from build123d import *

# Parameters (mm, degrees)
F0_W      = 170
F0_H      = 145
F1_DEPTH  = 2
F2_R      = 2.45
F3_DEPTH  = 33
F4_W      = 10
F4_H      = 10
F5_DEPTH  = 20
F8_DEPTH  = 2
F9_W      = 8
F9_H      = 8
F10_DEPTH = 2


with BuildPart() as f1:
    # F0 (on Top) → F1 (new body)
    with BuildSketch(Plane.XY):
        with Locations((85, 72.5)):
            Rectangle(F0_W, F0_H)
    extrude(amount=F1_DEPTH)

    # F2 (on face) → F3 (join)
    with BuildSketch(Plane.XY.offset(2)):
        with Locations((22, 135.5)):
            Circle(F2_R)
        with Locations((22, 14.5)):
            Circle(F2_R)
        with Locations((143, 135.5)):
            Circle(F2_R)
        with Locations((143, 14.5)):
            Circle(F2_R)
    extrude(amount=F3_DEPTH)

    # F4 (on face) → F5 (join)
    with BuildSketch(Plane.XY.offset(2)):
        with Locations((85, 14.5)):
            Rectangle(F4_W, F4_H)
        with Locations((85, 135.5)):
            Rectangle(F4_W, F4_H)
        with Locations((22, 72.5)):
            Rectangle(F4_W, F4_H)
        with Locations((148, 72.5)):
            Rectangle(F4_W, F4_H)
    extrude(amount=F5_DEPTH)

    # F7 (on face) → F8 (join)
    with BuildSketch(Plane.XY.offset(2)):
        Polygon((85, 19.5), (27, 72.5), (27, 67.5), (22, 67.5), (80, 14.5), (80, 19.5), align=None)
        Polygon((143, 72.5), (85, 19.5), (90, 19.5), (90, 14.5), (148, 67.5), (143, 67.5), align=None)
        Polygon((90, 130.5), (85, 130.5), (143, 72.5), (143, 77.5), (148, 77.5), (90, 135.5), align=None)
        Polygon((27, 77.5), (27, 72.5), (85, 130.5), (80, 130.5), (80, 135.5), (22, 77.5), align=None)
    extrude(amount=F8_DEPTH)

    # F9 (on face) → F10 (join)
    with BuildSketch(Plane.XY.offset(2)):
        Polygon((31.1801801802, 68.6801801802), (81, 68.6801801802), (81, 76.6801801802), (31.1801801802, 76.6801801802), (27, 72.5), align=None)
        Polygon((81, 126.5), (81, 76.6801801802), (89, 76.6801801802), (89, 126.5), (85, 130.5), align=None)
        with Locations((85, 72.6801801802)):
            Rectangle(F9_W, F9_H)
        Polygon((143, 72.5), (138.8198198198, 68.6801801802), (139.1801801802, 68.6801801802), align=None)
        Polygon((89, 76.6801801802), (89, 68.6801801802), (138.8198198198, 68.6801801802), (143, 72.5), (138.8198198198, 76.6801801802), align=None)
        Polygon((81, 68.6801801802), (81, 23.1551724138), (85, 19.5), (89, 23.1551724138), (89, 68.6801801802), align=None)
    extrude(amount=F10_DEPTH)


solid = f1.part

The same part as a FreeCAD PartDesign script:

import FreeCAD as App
import Part
import Sketcher
from FreeCAD import Vector
Q = App.Units.Quantity

doc = App.newDocument("Part")
body = doc.addObject("PartDesign::Body", "Body")

sketch1 = body.newObject("Sketcher::SketchObject", "Sketch")
sketch1.AttachmentSupport = (doc.getObject("XY_Plane"), [""])
sketch1.MapMode = "FlatFace"
sketch1.addGeometry([
    Part.LineSegment(Vector(0, 145, 0), Vector(0, 0, 0)),
    Part.LineSegment(Vector(0, 0, 0), Vector(170, 0, 0)),
    Part.LineSegment(Vector(170, 0, 0), Vector(170, 145, 0)),
    Part.LineSegment(Vector(170, 145, 0), Vector(0, 145, 0)),
], False)
sketch1.addConstraint([
    Sketcher.Constraint("Coincident", 0, 2, 1, 1),
    Sketcher.Constraint("Coincident", 1, 2, 2, 1),
    Sketcher.Constraint("Coincident", 2, 2, 3, 1),
    Sketcher.Constraint("Coincident", 3, 2, 0, 1),
    Sketcher.Constraint("Vertical", 0),
    Sketcher.Constraint("Horizontal", 1),
    Sketcher.Constraint("Vertical", 2),
    Sketcher.Constraint("Horizontal", 3),
    Sketcher.Constraint("Coincident", 0, 2, -1, 1),
    Sketcher.Constraint("DistanceX", 1, 1, 1, 2, Q("170 mm")),
    Sketcher.Constraint("DistanceY", 0, 2, 0, 1, Q("145 mm")),
])
pad1 = body.newObject("PartDesign::Pad", "Pad")
pad1.Profile = sketch1
pad1.Length = 2

sketch2 = body.newObject("Sketcher::SketchObject", "Sketch001")
sketch2.AttachmentSupport = (doc.getObject("XY_Plane"), [""])
sketch2.MapMode = "FlatFace"
sketch2.AttachmentOffset = App.Placement(Vector(0, 0, 2), App.Rotation())
sketch2.addGeometry([
    Part.Circle(Vector(22, 135.5, 0), Vector(0, 0, 1), 2.5),
    Part.Circle(Vector(22, 14.5, 0), Vector(0, 0, 1), 2.5),
    Part.Circle(Vector(143, 135.5, 0), Vector(0, 0, 1), 2.5),
    Part.Circle(Vector(143, 14.5, 0), Vector(0, 0, 1), 2.5),
], False)
sketch2.addConstraint([
    Sketcher.Constraint("Equal", 0, 1),
    Sketcher.Constraint("Equal", 1, 2),
    Sketcher.Constraint("Equal", 2, 3),
    Sketcher.Constraint("Horizontal", 0, 3, 2, 3),
    Sketcher.Constraint("Horizontal", 1, 3, 3, 3),
    Sketcher.Constraint("Vertical", 0, 3, 1, 3),
    Sketcher.Constraint("Vertical", 2, 3, 3, 3),
    Sketcher.Constraint("Diameter", 0, Q("4.9 mm")),
    Sketcher.Constraint("DistanceX", -1, 1, 0, 3, Q("22 mm")),
    Sketcher.Constraint("DistanceX", -1, 1, 2, 3, Q("143 mm")),
    Sketcher.Constraint("DistanceY", 1, 3, 0, 3, Q("121 mm")),
    Sketcher.Constraint("DistanceY", -1, 1, 0, 3, Q("135.5 mm")),
])
pad2 = body.newObject("PartDesign::Pad", "Pad001")
pad2.Profile = sketch2
pad2.Length = 33

sketch3 = body.newObject("Sketcher::SketchObject", "Sketch002")
sketch3.AttachmentSupport = (doc.getObject("XY_Plane"), [""])
sketch3.MapMode = "FlatFace"
sketch3.AttachmentOffset = App.Placement(Vector(0, 0, 2), App.Rotation())
sketch3.addGeometry([
    Part.LineSegment(Vector(80, 20, 0), Vector(80, 10, 0)),
    Part.LineSegment(Vector(80, 10, 0), Vector(90, 10, 0)),
    Part.LineSegment(Vector(90, 10, 0), Vector(90, 20, 0)),
    Part.LineSegment(Vector(90, 20, 0), Vector(80, 20, 0)),
    Part.LineSegment(Vector(80, 140, 0), Vector(80, 130, 0)),
    Part.LineSegment(Vector(80, 130, 0), Vector(90, 130, 0)),
    Part.LineSegment(Vector(90, 130, 0), Vector(90, 140, 0)),
    Part.LineSegment(Vector(90, 140, 0), Vector(80, 140, 0)),
    Part.LineSegment(Vector(17, 78, 0), Vector(17, 68, 0)),
    Part.LineSegment(Vector(17, 68, 0), Vector(27, 68, 0)),
    Part.LineSegment(Vector(27, 68, 0), Vector(27, 78, 0)),
    Part.LineSegment(Vector(27, 78, 0), Vector(17, 78, 0)),
    Part.LineSegment(Vector(143, 78, 0), Vector(143, 68, 0)),
    Part.LineSegment(Vector(143, 68, 0), Vector(153, 68, 0)),
    Part.LineSegment(Vector(153, 68, 0), Vector(153, 78, 0)),
    Part.LineSegment(Vector(153, 78, 0), Vector(143, 78, 0)),
], False)
sketch3.addConstraint([
    Sketcher.Constraint("Coincident", 0, 2, 1, 1),
    Sketcher.Constraint("Coincident", 1, 2, 2, 1),
    Sketcher.Constraint("Coincident", 2, 2, 3, 1),
    Sketcher.Constraint("Coincident", 3, 2, 0, 1),
    Sketcher.Constraint("Coincident", 4, 2, 5, 1),
    Sketcher.Constraint("Coincident", 5, 2, 6, 1),
    Sketcher.Constraint("Coincident", 6, 2, 7, 1),
    Sketcher.Constraint("Coincident", 7, 2, 4, 1),
    Sketcher.Constraint("Coincident", 8, 2, 9, 1),
    Sketcher.Constraint("Coincident", 9, 2, 10, 1),
    Sketcher.Constraint("Coincident", 10, 2, 11, 1),
    Sketcher.Constraint("Coincident", 11, 2, 8, 1),
    Sketcher.Constraint("Coincident", 12, 2, 13, 1),
    Sketcher.Constraint("Coincident", 13, 2, 14, 1),
    Sketcher.Constraint("Coincident", 14, 2, 15, 1),
    Sketcher.Constraint("Coincident", 15, 2, 12, 1),
    Sketcher.Constraint("Vertical", 0),
    Sketcher.Constraint("Horizontal", 1),
    Sketcher.Constraint("Vertical", 2),
    Sketcher.Constraint("Horizontal", 3),
    Sketcher.Constraint("Vertical", 4),
    Sketcher.Constraint("Horizontal", 5),
    Sketcher.Constraint("Vertical", 6),
    Sketcher.Constraint("Horizontal", 7),
    Sketcher.Constraint("Vertical", 8),
    Sketcher.Constraint("Horizontal", 9),
    Sketcher.Constraint("Vertical", 10),
    Sketcher.Constraint("Horizontal", 11),
    Sketcher.Constraint("Vertical", 12),
    Sketcher.Constraint("Horizontal", 13),
    Sketcher.Constraint("Vertical", 14),
    Sketcher.Constraint("Horizontal", 15),
    Sketcher.Constraint("Horizontal", 9, 2, 12, 2),
    Sketcher.Constraint("Horizontal", 11, 2, 14, 2),
    Sketcher.Constraint("Vertical", 3, 2, 4, 2),
    Sketcher.Constraint("Vertical", 2, 2, 5, 2),
    Sketcher.Constraint("Equal", 7, 9),
    Sketcher.Constraint("Equal", 11, 13),
    Sketcher.Constraint("Equal", 15, 0),
    Sketcher.Constraint("Equal", 2, 4),
    Sketcher.Constraint("Equal", 6, 8),
    Sketcher.Constraint("DistanceX", 1, 1, 1, 2, Q("10 mm")),
    Sketcher.Constraint("DistanceX", -1, 1, 0, 2, Q("80 mm")),
    Sketcher.Constraint("DistanceX", -1, 1, 8, 2, Q("17 mm")),
    Sketcher.Constraint("DistanceX", -1, 1, 12, 2, Q("143 mm")),
    Sketcher.Constraint("DistanceY", 3, 2, 4, 2, Q("111 mm")),
    Sketcher.Constraint("DistanceY", 3, 2, 8, 2, Q("48 mm")),
    Sketcher.Constraint("DistanceY", -1, 1, 0, 2, Q("9.5 mm")),
])
pad3 = body.newObject("PartDesign::Pad", "Pad002")
pad3.Profile = sketch3
pad3.Length = 20

sketch4 = body.newObject("Sketcher::SketchObject", "Sketch003")
sketch4.AttachmentSupport = (doc.getObject("XY_Plane"), [""])
sketch4.MapMode = "FlatFace"
sketch4.AttachmentOffset = App.Placement(Vector(0, 0, 2), App.Rotation())
sketch4.addGeometry([
    Part.LineSegment(Vector(85, 20, 0), Vector(27, 72, 0)),
    Part.LineSegment(Vector(27, 72, 0), Vector(27, 68, 0)),
    Part.LineSegment(Vector(27, 68, 0), Vector(22, 68, 0)),
    Part.LineSegment(Vector(22, 68, 0), Vector(80, 14, 0)),
    Part.LineSegment(Vector(80, 14, 0), Vector(80, 20, 0)),
    Part.LineSegment(Vector(80, 20, 0), Vector(85, 20, 0)),
    Part.LineSegment(Vector(143, 72, 0), Vector(85, 20, 0)),
    Part.LineSegment(Vector(85, 20, 0), Vector(90, 20, 0)),
    Part.LineSegment(Vector(90, 20, 0), Vector(90, 14, 0)),
    Part.LineSegment(Vector(90, 14, 0), Vector(148, 68, 0)),
    Part.LineSegment(Vector(148, 68, 0), Vector(143, 68, 0)),
    Part.LineSegment(Vector(143, 68, 0), Vector(143, 72, 0)),
    Part.LineSegment(Vector(90, 130, 0), Vector(85, 130, 0)),
    Part.LineSegment(Vector(85, 130, 0), Vector(143, 72, 0)),
    Part.LineSegment(Vector(143, 72, 0), Vector(143, 78, 0)),
    Part.LineSegment(Vector(143, 78, 0), Vector(148, 78, 0)),
    Part.LineSegment(Vector(148, 78, 0), Vector(90, 136, 0)),
    Part.LineSegment(Vector(90, 136, 0), Vector(90, 130, 0)),
    Part.LineSegment(Vector(27, 78, 0), Vector(27, 72, 0)),
    Part.LineSegment(Vector(27, 72, 0), Vector(85, 130, 0)),
    Part.LineSegment(Vector(85, 130, 0), Vector(80, 130, 0)),
    Part.LineSegment(Vector(80, 130, 0), Vector(80, 136, 0)),
    Part.LineSegment(Vector(80, 136, 0), Vector(22, 78, 0)),
    Part.LineSegment(Vector(22, 78, 0), Vector(27, 78, 0)),
], False)
sketch4.addConstraint([
    Sketcher.Constraint("Coincident", 0, 2, 1, 1),
    Sketcher.Constraint("Coincident", 1, 2, 2, 1),
    Sketcher.Constraint("Coincident", 2, 2, 3, 1),
    Sketcher.Constraint("Coincident", 3, 2, 4, 1),
    Sketcher.Constraint("Coincident", 4, 2, 5, 1),
    Sketcher.Constraint("Coincident", 5, 2, 0, 1),
    Sketcher.Constraint("Coincident", 6, 2, 7, 1),
    Sketcher.Constraint("Coincident", 7, 2, 8, 1),
    Sketcher.Constraint("Coincident", 8, 2, 9, 1),
    Sketcher.Constraint("Coincident", 9, 2, 10, 1),
    Sketcher.Constraint("Coincident", 10, 2, 11, 1),
    Sketcher.Constraint("Coincident", 11, 2, 6, 1),
    Sketcher.Constraint("Coincident", 12, 2, 13, 1),
    Sketcher.Constraint("Coincident", 13, 2, 14, 1),
    Sketcher.Constraint("Coincident", 14, 2, 15, 1),
    Sketcher.Constraint("Coincident", 15, 2, 16, 1),
    Sketcher.Constraint("Coincident", 16, 2, 17, 1),
    Sketcher.Constraint("Coincident", 17, 2, 12, 1),
    Sketcher.Constraint("Coincident", 18, 2, 19, 1),
    Sketcher.Constraint("Coincident", 19, 2, 20, 1),
    Sketcher.Constraint("Coincident", 20, 2, 21, 1),
    Sketcher.Constraint("Coincident", 21, 2, 22, 1),
    Sketcher.Constraint("Coincident", 22, 2, 23, 1),
    Sketcher.Constraint("Coincident", 23, 2, 18, 1),
    Sketcher.Constraint("Vertical", 1),
    Sketcher.Constraint("Horizontal", 2),
    Sketcher.Constraint("Vertical", 4),
    Sketcher.Constraint("Horizontal", 5),
    Sketcher.Constraint("Horizontal", 7),
    Sketcher.Constraint("Vertical", 8),
    Sketcher.Constraint("Horizontal", 10),
    Sketcher.Constraint("Vertical", 11),
    Sketcher.Constraint("Horizontal", 12),
    Sketcher.Constraint("Vertical", 14),
    Sketcher.Constraint("Horizontal", 15),
    Sketcher.Constraint("Vertical", 17),
    Sketcher.Constraint("Vertical", 18),
    Sketcher.Constraint("Horizontal", 20),
    Sketcher.Constraint("Vertical", 21),
    Sketcher.Constraint("Horizontal", 23),
    Sketcher.Constraint("Coincident", 6, 2, 5, 2),
    Sketcher.Constraint("Coincident", 13, 2, 11, 2),
    Sketcher.Constraint("Coincident", 18, 2, 0, 2),
    Sketcher.Constraint("Coincident", 19, 2, 12, 2),
    Sketcher.Constraint("Parallel", 0, 3),
    Sketcher.Constraint("Parallel", 6, 9),
    Sketcher.Constraint("Parallel", 13, 16),
    Sketcher.Constraint("Perpendicular", 16, 19),
    Sketcher.Constraint("Parallel", 19, 22),
    Sketcher.Constraint("Horizontal", 3, 2, 8, 2),
    Sketcher.Constraint("Horizontal", 2, 2, 9, 2),
    Sketcher.Constraint("Horizontal", 0, 2, 11, 2),
    Sketcher.Constraint("Horizontal", 16, 2, 21, 2),
    Sketcher.Constraint("Horizontal", 15, 2, 22, 2),
    Sketcher.Constraint("Vertical", 6, 2, 12, 2),
    Sketcher.Constraint("Vertical", 9, 2, 15, 2),
    Sketcher.Constraint("Vertical", 8, 2, 16, 2),
    Sketcher.Constraint("Vertical", 4, 2, 20, 2),
    Sketcher.Constraint("Equal", 2, 5),
    Sketcher.Constraint("Equal", 5, 7),
    Sketcher.Constraint("Equal", 23, 1),
    Sketcher.Constraint("Equal", 11, 14),
    Sketcher.Constraint("Equal", 3, 6),
    Sketcher.Constraint("DistanceX", 2, 2, 2, 1, Q("5 mm")),
    Sketcher.Constraint("DistanceX", -1, 1, 0, 2, Q("27 mm")),
    Sketcher.Constraint("DistanceX", -1, 1, 3, 2, Q("80 mm")),
    Sketcher.Constraint("DistanceY", 3, 2, 1, 2, Q("53 mm")),
    Sketcher.Constraint("DistanceY", -1, 1, 0, 2, Q("72.5 mm")),
])
pad4 = body.newObject("PartDesign::Pad", "Pad003")
pad4.Profile = sketch4
pad4.Length = 2

sketch5 = body.newObject("Sketcher::SketchObject", "Sketch004")
sketch5.AttachmentSupport = (doc.getObject("XY_Plane"), [""])
sketch5.MapMode = "FlatFace"
sketch5.AttachmentOffset = App.Placement(Vector(0, 0, 2), App.Rotation())
sketch5.addGeometry([
    Part.LineSegment(Vector(31, 69, 0), Vector(81, 69, 0)),
    Part.LineSegment(Vector(81, 69, 0), Vector(81, 23, 0)),
    Part.LineSegment(Vector(81, 23, 0), Vector(85, 20, 0)),
    Part.LineSegment(Vector(85, 20, 0), Vector(89, 23, 0)),
    Part.LineSegment(Vector(89, 23, 0), Vector(89, 69, 0)),
    Part.LineSegment(Vector(89, 69, 0), Vector(139, 69, 0)),
    Part.LineSegment(Vector(139, 69, 0), Vector(143, 72, 0)),
    Part.LineSegment(Vector(143, 72, 0), Vector(139, 77, 0)),
    Part.LineSegment(Vector(139, 77, 0), Vector(89, 77, 0)),
    Part.LineSegment(Vector(89, 77, 0), Vector(89, 126, 0)),
    Part.LineSegment(Vector(89, 126, 0), Vector(85, 130, 0)),
    Part.LineSegment(Vector(85, 130, 0), Vector(81, 126, 0)),
    Part.LineSegment(Vector(81, 126, 0), Vector(81, 77, 0)),
    Part.LineSegment(Vector(81, 77, 0), Vector(31, 77, 0)),
    Part.LineSegment(Vector(31, 77, 0), Vector(27, 72, 0)),
    Part.LineSegment(Vector(27, 72, 0), Vector(31, 69, 0)),
], False)
sketch5.addConstraint([
    Sketcher.Constraint("Coincident", 0, 2, 1, 1),
    Sketcher.Constraint("Coincident", 1, 2, 2, 1),
    Sketcher.Constraint("Coincident", 2, 2, 3, 1),
    Sketcher.Constraint("Coincident", 3, 2, 4, 1),
    Sketcher.Constraint("Coincident", 4, 2, 5, 1),
    Sketcher.Constraint("Coincident", 5, 2, 6, 1),
    Sketcher.Constraint("Coincident", 6, 2, 7, 1),
    Sketcher.Constraint("Coincident", 7, 2, 8, 1),
    Sketcher.Constraint("Coincident", 8, 2, 9, 1),
    Sketcher.Constraint("Coincident", 9, 2, 10, 1),
    Sketcher.Constraint("Coincident", 10, 2, 11, 1),
    Sketcher.Constraint("Coincident", 11, 2, 12, 1),
    Sketcher.Constraint("Coincident", 12, 2, 13, 1),
    Sketcher.Constraint("Coincident", 13, 2, 14, 1),
    Sketcher.Constraint("Coincident", 14, 2, 15, 1),
    Sketcher.Constraint("Coincident", 15, 2, 0, 1),
    Sketcher.Constraint("Horizontal", 0),
    Sketcher.Constraint("Vertical", 1),
    Sketcher.Constraint("Vertical", 4),
    Sketcher.Constraint("Horizontal", 5),
    Sketcher.Constraint("Horizontal", 8),
    Sketcher.Constraint("Vertical", 9),
    Sketcher.Constraint("Vertical", 12),
    Sketcher.Constraint("Horizontal", 13),
    Sketcher.Constraint("Perpendicular", 6, 7),
    Sketcher.Constraint("Parallel", 7, 10),
    Sketcher.Constraint("Perpendicular", 10, 11),
    Sketcher.Constraint("Parallel", 11, 14),
    Sketcher.Constraint("Parallel", 2, 15),
    Sketcher.Constraint("Horizontal", 1, 2, 3, 2),
    Sketcher.Constraint("Horizontal", 0, 2, 4, 2),
    Sketcher.Constraint("Horizontal", 9, 2, 11, 2),
    Sketcher.Constraint("Horizontal", 8, 2, 12, 2),
    Sketcher.Constraint("Horizontal", 6, 2, 14, 2),
    Sketcher.Constraint("Vertical", 4, 2, 8, 2),
    Sketcher.Constraint("Vertical", 2, 2, 10, 2),
    Sketcher.Constraint("Vertical", 1, 2, 11, 2),
    Sketcher.Constraint("Vertical", 13, 2, 15, 2),
    Sketcher.Constraint("Equal", 0, 8),
    Sketcher.Constraint("Equal", 13, 9),
    Sketcher.Constraint("Equal", 2, 3),
    Sketcher.Constraint("DistanceX", -1, 1, 0, 2, Q("81 mm")),
    Sketcher.Constraint("DistanceX", -1, 1, 2, 2, Q("85 mm")),
    Sketcher.Constraint("DistanceX", -1, 1, 6, 2, Q("143 mm")),
    Sketcher.Constraint("DistanceY", 2, 2, 6, 2, Q("53 mm")),
    Sketcher.Constraint("DistanceY", 5, 2, 7, 2, Q("8 mm")),
    Sketcher.Constraint("DistanceY", -1, 1, 2, 2, Q("19.5 mm")),
    Sketcher.Constraint("DistanceX", 0, 1, 0, 2, Q("49.81982 mm")),
])
pad5 = body.newObject("PartDesign::Pad", "Pad004")
pad5.Profile = sketch5
pad5.Length = 2

doc.recompute()
